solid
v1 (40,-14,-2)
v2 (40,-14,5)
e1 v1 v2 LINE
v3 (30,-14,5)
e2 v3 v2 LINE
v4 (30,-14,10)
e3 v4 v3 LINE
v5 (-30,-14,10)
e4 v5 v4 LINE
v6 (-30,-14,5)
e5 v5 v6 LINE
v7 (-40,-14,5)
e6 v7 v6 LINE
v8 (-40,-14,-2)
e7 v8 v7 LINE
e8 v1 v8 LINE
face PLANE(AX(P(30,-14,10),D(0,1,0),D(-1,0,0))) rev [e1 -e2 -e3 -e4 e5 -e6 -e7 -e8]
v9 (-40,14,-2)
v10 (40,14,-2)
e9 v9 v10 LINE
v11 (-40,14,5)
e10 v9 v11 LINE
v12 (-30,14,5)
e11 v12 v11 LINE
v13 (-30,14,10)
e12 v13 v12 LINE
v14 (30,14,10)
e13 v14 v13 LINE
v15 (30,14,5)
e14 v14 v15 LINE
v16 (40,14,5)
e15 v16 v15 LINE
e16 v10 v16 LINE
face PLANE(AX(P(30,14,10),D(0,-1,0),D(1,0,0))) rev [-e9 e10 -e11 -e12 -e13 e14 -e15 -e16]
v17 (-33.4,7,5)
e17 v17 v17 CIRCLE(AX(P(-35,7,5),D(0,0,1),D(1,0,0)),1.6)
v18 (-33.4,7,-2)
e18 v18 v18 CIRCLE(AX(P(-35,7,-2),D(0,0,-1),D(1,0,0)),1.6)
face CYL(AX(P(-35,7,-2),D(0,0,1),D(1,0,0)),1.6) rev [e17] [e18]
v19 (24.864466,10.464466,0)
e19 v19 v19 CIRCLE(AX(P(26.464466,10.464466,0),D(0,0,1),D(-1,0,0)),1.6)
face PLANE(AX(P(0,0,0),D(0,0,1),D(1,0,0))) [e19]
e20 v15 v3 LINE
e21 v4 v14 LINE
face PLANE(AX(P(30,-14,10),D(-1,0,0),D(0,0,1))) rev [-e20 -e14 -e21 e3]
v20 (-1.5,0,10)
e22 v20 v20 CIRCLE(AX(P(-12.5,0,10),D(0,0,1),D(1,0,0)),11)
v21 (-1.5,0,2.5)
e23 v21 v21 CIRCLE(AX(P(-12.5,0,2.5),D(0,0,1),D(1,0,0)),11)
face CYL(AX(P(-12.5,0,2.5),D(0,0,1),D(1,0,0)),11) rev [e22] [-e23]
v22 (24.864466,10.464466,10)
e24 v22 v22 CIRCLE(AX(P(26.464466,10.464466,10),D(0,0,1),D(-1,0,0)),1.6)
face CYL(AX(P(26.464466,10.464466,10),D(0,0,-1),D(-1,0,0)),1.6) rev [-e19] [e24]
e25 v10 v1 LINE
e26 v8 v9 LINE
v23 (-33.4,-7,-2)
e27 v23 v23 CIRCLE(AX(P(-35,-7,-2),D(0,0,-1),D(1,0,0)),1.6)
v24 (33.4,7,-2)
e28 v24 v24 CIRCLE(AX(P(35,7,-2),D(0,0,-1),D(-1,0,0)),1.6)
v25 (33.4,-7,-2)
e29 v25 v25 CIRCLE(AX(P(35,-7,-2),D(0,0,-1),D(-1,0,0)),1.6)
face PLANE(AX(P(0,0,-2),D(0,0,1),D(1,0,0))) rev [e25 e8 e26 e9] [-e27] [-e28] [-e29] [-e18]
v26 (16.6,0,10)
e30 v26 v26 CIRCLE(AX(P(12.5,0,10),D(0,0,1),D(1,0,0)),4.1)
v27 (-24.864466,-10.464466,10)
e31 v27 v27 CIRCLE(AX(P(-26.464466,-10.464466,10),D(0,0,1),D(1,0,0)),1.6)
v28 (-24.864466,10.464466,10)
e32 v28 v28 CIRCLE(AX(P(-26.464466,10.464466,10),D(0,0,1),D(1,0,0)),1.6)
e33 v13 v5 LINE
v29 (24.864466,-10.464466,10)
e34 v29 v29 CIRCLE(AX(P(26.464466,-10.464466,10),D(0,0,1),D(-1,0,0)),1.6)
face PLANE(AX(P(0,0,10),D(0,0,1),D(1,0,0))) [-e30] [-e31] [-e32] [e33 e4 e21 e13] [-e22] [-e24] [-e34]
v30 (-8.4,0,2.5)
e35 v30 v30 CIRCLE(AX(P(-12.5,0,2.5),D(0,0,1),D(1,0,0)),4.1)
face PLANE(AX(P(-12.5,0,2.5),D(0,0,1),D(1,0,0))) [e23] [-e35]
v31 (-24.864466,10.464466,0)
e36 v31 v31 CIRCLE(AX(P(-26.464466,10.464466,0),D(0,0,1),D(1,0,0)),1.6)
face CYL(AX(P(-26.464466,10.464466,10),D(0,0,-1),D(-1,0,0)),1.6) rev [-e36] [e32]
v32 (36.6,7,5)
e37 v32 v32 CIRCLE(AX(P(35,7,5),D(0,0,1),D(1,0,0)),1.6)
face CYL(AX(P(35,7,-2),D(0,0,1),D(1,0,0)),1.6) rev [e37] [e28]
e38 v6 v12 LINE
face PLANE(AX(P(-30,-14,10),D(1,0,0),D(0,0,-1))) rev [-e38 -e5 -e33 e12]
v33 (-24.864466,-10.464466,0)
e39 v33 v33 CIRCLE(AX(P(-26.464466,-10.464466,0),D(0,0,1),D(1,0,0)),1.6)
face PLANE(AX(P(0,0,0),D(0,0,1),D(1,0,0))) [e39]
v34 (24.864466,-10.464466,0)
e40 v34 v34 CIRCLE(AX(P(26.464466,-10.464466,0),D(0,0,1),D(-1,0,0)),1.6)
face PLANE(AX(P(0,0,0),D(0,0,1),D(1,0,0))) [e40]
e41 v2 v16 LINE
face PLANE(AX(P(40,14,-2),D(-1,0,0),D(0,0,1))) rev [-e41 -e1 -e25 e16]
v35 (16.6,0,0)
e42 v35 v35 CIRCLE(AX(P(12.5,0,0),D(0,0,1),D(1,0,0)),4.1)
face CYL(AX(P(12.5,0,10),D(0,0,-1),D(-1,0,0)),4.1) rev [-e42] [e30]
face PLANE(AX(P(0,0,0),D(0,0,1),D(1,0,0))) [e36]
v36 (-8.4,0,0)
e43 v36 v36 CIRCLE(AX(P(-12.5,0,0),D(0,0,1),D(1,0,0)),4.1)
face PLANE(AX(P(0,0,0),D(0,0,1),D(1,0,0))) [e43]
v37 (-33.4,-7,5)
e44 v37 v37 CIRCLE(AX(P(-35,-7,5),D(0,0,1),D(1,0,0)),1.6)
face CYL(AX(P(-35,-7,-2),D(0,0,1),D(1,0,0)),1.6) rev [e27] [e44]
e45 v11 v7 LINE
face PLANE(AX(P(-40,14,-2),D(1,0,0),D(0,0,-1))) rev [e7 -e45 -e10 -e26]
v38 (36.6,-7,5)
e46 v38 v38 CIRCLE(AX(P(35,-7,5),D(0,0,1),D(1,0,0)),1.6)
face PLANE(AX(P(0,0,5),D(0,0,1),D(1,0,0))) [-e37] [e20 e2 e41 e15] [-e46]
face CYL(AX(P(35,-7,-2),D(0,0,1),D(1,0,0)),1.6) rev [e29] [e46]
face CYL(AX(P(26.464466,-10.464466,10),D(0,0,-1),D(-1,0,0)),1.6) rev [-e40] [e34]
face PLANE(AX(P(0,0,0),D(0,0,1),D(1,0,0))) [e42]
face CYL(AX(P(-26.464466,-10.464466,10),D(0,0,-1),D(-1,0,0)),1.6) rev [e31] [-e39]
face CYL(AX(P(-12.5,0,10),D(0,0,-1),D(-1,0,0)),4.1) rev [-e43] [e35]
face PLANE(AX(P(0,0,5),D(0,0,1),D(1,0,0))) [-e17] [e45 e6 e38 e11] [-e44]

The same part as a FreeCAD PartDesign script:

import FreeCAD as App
import Part
import Sketcher

V = App.Vector
Q = App.Units.Quantity


def add_polygon(sketch, points):
    """Adds a closed chain of lines whose ends are joined by coincident constraints."""
    first, n = sketch.GeometryCount, len(points)
    for a, b in zip(points, points[1:] + points[:1]):
        sketch.addGeometry(Part.LineSegment(App.Vector(*a, 0), App.Vector(*b, 0)), False)
    for i in range(n):
        sketch.addConstraint(Sketcher.Constraint("Coincident", first + i, 2, first + (i + 1) % n, 1))

doc = App.newDocument("Part")
body = doc.addObject("PartDesign::Body", "Body")

# Sketch on XY plane
sketch1 = body.newObject("Sketcher::SketchObject", "Sketch")
sketch1.AttachmentSupport = (doc.getObject("XY_Plane"), [""])
sketch1.MapMode = "FlatFace"
add_polygon(sketch1, [(-30, 14), (-30, -14), (30, -14), (30, 14)])  # lines 0-3
sketch1.addGeometry(Part.Circle(V(-26.464466, -10.464466, 0), V(0, 0, 1), 1.6), False)  # 4
sketch1.addGeometry(Part.Circle(V(-12.5, 0, 0), V(0, 0, 1), 4.1), False)  # 5
sketch1.addGeometry(Part.Circle(V(26.464466, -10.464466, 0), V(0, 0, 1), 1.6), False)  # 6
sketch1.addGeometry(Part.Circle(V(12.5, 0, 0), V(0, 0, 1), 4.1), False)  # 7
sketch1.addGeometry(Part.Circle(V(-26.464466, 10.464466, 0), V(0, 0, 1), 1.6), False)  # 8
sketch1.addGeometry(Part.Circle(V(26.464466, 10.464466, 0), V(0, 0, 1), 1.6), False)  # 9
sketch1.addConstraint([
    Sketcher.Constraint("Vertical", 0),
    Sketcher.Constraint("Horizontal", 1),
    Sketcher.Constraint("Vertical", 2),
    Sketcher.Constraint("Horizontal", 3),
    Sketcher.Constraint("Equal", 4, 6),
    Sketcher.Constraint("Equal", 5, 7),
    Sketcher.Constraint("Equal", 6, 8),
    Sketcher.Constraint("Equal", 8, 9),
    Sketcher.Constraint("Symmetric", 5, 3, 7, 3, -1, 1),
    Sketcher.Constraint("Symmetric", 6, 3, 8, 3, -1, 1),
    Sketcher.Constraint("Symmetric", 4, 3, 9, 3, -1, 1),
    Sketcher.Constraint("Symmetric", 0, 2, 2, 2, -1, 1),
    Sketcher.Constraint("Symmetric", 4, 3, 6, 3, -2),
    Sketcher.Constraint("PointOnObject", 5, 3, -1),
    Sketcher.Constraint("Diameter", 4, Q("3.2 mm")),
    Sketcher.Constraint("Diameter", 5, Q("8.2 mm")),
    Sketcher.Constraint("DistanceX", 1, 1, 1, 2, Q("60 mm")),
    Sketcher.Constraint("DistanceY", 0, 2, 0, 1, Q("28 mm")),
    Sketcher.Constraint("DistanceX", 5, 3, 7, 3, Q("25 mm")),
    Sketcher.Constraint("DistanceX", 4, 3, -1, 1, Q("26.464466 mm")),
    Sketcher.Constraint("DistanceY", 4, 3, -1, 1, Q("10.464466 mm")),
])
pad1 = body.newObject("PartDesign::Pad", "Pad")
pad1.Profile = sketch1
pad1.Length = 10

# Sketch on XY plane
sketch2 = body.newObject("Sketcher::SketchObject", "Sketch001")
sketch2.AttachmentSupport = (doc.getObject("XY_Plane"), [""])
sketch2.MapMode = "FlatFace"
sketch2.AttachmentOffset = App.Placement(V(0, 0, 10), App.Rotation())
sketch2.addGeometry(Part.Circle(V(-12.5, 0, 0), V(0, 0, 1), 11), False)
sketch2.addConstraint([
    Sketcher.Constraint("PointOnObject", 0, 3, -1),
    Sketcher.Constraint("Diameter", 0, Q("22 mm")),
    Sketcher.Constraint("DistanceX", 0, 3, -1, 1, Q("12.5 mm")),
])
pocket1 = body.newObject("PartDesign::Pocket", "Pocket")
pocket1.Profile = sketch2
pocket1.Length = 7.5

# Sketch on XY plane
sketch3 = body.newObject("Sketcher::SketchObject", "Sketch002")
sketch3.AttachmentSupport = (doc.getObject("XY_Plane"), [""])
sketch3.MapMode = "FlatFace"
add_polygon(sketch3, [(40, 14), (40, -14), (-40, -14), (-40, 14)])  # lines 0-3
sketch3.addGeometry(Part.Circle(V(35, -7, 0), V(0, 0, 1), 1.6), False)  # 4
sketch3.addGeometry(Part.Circle(V(-35, -7, 0), V(0, 0, 1), 1.6), False)  # 5
sketch3.addGeometry(Part.Circle(V(35, 7, 0), V(0, 0, 1), 1.6), False)  # 6
sketch3.addGeometry(Part.Circle(V(-35, 7, 0), V(0, 0, 1), 1.6), False)  # 7
sketch3.addConstraint([
    Sketcher.Constraint("Vertical", 0),
    Sketcher.Constraint("Horizontal", 1),
    Sketcher.Constraint("Vertical", 2),
    Sketcher.Constraint("Horizontal", 3),
    Sketcher.Constraint("Equal", 4, 5),
    Sketcher.Constraint("Equal", 5, 6),
    Sketcher.Constraint("Equal", 6, 7),
    Sketcher.Constraint("Symmetric", 5, 3, 6, 3, -1, 1),
    Sketcher.Constraint("Symmetric", 4, 3, 7, 3, -1, 1),
    Sketcher.Constraint("Symmetric", 0, 2, 2, 2, -1, 1),
    Sketcher.Constraint("Symmetric", 4, 3, 5, 3, -2),
    Sketcher.Constraint("Diameter", 4, Q("3.2 mm")),
    Sketcher.Constraint("DistanceX", 1, 2, 1, 1, Q("80 mm")),
    Sketcher.Constraint("DistanceY", 0, 2, 0, 1, Q("28 mm")),
    Sketcher.Constraint("DistanceX", -1, 1, 4, 3, Q("35 mm")),
    Sketcher.Constraint("DistanceY", 4, 3, -1, 1, Q("7 mm")),
])
pad2 = body.newObject("PartDesign::Pad", "Pad001")
pad2.Profile = sketch3
pad2.Length = 2
pad2.Reversed = True

# Sketch on XY plane
sketch4 = body.newObject("Sketcher::SketchObject", "Sketch003")
sketch4.AttachmentSupport = (doc.getObject("XY_Plane"), [""])
sketch4.MapMode = "FlatFace"
add_polygon(sketch4, [(30, 14), (30, -14), (40, -14), (40, 14)])  # lines 0-3
sketch4.addGeometry(Part.Circle(V(35, -7, 0), V(0, 0, 1), 1.6), False)  # 4
sketch4.addGeometry(Part.Circle(V(35, 7, 0), V(0, 0, 1), 1.6), False)  # 5
add_polygon(sketch4, [(-40, 14), (-40, -14), (-30, -14), (-30, 14)])  # lines 6-9
sketch4.addGeometry(Part.Circle(V(-35, -7, 0), V(0, 0, 1), 1.6), False)  # 10
sketch4.addGeometry(Part.Circle(V(-35, 7, 0), V(0, 0, 1), 1.6), False)  # 11
sketch4.addConstraint([
    Sketcher.Constraint("Vertical", 0),
    Sketcher.Constraint("Horizontal", 1),
    Sketcher.Constraint("Vertical", 2),
    Sketcher.Constraint("Horizontal", 3),
    Sketcher.Constraint("Vertical", 6),
    Sketcher.Constraint("Horizontal", 7),
    Sketcher.Constraint("Vertical", 8),
    Sketcher.Constraint("Horizontal", 9),
    Sketcher.Constraint("Equal", 4, 5),
    Sketcher.Constraint("Equal", 5, 10),
    Sketcher.Constraint("Equal", 10, 11),
    Sketcher.Constraint("Symmetric", 5, 3, 10, 3, -1, 1),
    Sketcher.Constraint("Symmetric", 4, 3, 11, 3, -1, 1),
    Sketcher.Constraint("Symmetric", 2, 2, 6, 2, -1, 1),
    Sketcher.Constraint("Symmetric", 0, 2, 8, 2, -1, 1),
    Sketcher.Constraint("Symmetric", 4, 3, 10, 3, -2),
    Sketcher.Constraint("Horizontal", 1, 2, 6, 2),
    Sketcher.Constraint("Diameter", 4, Q("3.2 mm")),
    Sketcher.Constraint("DistanceX", 1, 1, 1, 2, Q("10 mm")),
    Sketcher.Constraint("DistanceY", 0, 2, 0, 1, Q("28 mm")),
    Sketcher.Constraint("DistanceX", -1, 1, 4, 3, Q("35 mm")),
    Sketcher.Constraint("DistanceY", 4, 3, -1, 1, Q("7 mm")),
    Sketcher.Constraint("DistanceX", -1, 1, 0, 2, Q("30 mm")),
])
pad3 = body.newObject("PartDesign::Pad", "Pad002")
pad3.Profile = sketch4
pad3.Length = 5

doc.recompute()
